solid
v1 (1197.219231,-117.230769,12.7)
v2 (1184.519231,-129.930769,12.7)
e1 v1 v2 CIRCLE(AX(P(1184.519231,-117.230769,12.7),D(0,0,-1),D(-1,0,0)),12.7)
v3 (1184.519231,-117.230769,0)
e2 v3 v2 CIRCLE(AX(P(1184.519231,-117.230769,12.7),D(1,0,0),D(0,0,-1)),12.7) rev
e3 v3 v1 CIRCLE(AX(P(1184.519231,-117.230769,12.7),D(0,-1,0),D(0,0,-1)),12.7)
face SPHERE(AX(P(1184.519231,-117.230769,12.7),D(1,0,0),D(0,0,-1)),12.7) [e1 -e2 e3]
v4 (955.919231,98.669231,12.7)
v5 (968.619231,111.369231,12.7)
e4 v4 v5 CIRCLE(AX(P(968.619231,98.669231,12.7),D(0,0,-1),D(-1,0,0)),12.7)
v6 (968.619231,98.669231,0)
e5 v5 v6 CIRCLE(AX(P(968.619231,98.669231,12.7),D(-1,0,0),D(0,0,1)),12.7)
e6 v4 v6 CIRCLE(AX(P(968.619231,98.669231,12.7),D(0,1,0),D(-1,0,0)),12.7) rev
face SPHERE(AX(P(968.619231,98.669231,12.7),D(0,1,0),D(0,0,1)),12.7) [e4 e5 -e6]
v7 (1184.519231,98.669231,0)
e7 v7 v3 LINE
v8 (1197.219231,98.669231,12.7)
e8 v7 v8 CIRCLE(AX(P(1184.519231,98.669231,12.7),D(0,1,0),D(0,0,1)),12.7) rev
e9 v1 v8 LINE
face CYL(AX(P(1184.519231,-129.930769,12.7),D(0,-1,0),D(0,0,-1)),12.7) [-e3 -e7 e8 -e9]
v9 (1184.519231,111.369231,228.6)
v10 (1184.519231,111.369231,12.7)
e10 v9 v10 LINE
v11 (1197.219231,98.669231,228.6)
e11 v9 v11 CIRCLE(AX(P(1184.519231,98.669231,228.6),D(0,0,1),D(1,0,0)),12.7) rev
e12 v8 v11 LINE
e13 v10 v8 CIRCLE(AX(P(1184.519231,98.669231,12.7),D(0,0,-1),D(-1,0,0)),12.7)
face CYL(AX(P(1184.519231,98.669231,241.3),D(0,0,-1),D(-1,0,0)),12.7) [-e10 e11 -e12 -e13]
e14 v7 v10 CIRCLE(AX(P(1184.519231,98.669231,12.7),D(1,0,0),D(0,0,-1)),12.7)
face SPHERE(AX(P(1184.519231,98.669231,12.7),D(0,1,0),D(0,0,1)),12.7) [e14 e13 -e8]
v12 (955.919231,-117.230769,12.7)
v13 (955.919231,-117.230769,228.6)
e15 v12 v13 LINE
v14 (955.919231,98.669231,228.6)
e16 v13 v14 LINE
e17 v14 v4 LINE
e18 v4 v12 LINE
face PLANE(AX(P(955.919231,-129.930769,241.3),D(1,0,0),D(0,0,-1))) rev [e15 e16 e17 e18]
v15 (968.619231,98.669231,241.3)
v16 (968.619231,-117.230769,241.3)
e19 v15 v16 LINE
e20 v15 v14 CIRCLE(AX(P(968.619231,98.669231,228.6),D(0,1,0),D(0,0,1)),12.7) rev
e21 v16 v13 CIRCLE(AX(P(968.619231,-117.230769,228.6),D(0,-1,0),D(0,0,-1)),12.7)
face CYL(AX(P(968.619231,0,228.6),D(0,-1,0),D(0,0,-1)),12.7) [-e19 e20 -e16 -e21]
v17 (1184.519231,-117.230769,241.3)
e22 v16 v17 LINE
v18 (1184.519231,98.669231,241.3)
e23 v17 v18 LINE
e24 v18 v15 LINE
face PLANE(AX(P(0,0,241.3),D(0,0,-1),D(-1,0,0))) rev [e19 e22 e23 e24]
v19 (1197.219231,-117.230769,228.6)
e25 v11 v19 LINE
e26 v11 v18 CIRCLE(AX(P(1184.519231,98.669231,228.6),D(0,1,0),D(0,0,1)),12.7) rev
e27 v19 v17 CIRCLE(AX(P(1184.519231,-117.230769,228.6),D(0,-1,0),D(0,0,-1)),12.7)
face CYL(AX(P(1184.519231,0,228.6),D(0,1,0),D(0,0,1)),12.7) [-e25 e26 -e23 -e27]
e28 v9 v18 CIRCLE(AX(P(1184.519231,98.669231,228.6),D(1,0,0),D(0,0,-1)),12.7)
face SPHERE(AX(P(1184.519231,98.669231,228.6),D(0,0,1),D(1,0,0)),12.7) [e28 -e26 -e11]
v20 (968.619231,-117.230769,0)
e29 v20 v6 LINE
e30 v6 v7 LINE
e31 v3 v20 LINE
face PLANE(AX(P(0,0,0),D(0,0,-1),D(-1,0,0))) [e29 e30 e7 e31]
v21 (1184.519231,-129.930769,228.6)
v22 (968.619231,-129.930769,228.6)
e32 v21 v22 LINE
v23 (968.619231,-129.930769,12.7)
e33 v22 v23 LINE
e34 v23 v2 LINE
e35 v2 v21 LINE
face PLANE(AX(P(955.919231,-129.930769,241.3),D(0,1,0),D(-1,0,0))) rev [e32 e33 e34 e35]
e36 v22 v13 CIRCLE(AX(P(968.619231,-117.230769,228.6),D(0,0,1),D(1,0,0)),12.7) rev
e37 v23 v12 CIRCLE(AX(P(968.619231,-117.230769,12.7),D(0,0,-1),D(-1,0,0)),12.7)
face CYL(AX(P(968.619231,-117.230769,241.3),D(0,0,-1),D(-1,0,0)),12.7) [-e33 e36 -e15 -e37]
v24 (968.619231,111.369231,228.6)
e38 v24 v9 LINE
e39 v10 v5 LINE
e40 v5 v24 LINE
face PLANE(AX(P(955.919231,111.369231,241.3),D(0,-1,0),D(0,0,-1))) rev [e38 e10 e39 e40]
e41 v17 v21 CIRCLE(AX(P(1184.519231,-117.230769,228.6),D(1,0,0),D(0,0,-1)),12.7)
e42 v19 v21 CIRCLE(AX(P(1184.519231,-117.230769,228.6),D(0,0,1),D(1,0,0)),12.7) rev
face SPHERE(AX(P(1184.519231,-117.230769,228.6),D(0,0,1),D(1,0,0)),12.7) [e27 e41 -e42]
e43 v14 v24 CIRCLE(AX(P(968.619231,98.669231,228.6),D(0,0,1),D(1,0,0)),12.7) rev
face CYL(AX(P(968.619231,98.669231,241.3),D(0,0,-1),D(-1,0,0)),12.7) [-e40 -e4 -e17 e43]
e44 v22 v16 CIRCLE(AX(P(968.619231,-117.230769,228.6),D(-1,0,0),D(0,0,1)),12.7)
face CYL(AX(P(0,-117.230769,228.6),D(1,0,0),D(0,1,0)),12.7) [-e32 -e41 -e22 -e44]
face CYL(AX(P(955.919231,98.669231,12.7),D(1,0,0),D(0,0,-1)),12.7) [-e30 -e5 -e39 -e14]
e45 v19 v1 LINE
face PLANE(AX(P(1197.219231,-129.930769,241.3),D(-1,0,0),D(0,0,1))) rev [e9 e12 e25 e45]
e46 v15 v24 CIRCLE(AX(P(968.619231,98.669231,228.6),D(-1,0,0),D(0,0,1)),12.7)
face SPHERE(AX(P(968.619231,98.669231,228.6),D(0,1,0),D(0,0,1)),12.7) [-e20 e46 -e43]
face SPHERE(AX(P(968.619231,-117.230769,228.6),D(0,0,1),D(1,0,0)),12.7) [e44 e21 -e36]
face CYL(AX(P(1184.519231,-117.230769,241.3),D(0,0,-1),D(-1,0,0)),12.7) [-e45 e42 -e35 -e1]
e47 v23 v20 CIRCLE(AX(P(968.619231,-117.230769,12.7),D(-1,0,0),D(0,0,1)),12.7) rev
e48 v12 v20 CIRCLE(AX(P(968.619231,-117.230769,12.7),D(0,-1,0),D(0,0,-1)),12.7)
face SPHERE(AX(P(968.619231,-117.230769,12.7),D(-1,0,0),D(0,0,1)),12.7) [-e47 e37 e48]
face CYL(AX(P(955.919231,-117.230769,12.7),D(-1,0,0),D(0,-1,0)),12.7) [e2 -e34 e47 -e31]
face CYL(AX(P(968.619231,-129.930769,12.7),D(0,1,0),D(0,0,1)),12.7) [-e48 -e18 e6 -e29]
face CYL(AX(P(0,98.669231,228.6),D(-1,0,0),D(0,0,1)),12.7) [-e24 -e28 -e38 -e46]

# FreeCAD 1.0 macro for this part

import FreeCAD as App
import Part
import Sketcher
from FreeCAD import Vector
Q = App.Units.Quantity


def add_polygon(sketch, points):
    """Adds a closed chain of lines whose ends are joined by coincident constraints."""
    first, n = sketch.GeometryCount, len(points)
    for a, b in zip(points, points[1:] + points[:1]):
        sketch.addGeometry(Part.LineSegment(App.Vector(*a, 0), App.Vector(*b, 0)), False)
    for i in range(n):
        sketch.addConstraint(Sketcher.Constraint("Coincident", first + i, 2, first + (i + 1) % n, 1))

doc = App.newDocument("Part")
body = doc.addObject("PartDesign::Body", "Body")

# Sketch on XY plane
sketch1 = doc.addObject("Sketcher::SketchObject", "Sketch")
body.addObject(sketch1)
sketch1.AttachmentSupport = (doc.XY_Plane, [""])
sketch1.MapMode = "FlatFace"
add_polygon(sketch1, [(956, 111), (956, -130), (1197, -130), (1197, 111)])  # lines 0-3
sketch1.addConstraint([
    Sketcher.Constraint("Vertical", 0),
    Sketcher.Constraint("Horizontal", 1),
    Sketcher.Constraint("Vertical", 2),
    Sketcher.Constraint("Horizontal", 3),
    Sketcher.Constraint("Equal", 3, 0),
    Sketcher.Constraint("DistanceX", 1, 1, 1, 2, Q("9.5 in")),
    Sketcher.Constraint("DistanceX", -1, 1, 0, 2, Q("955.919231 mm")),
    Sketcher.Constraint("DistanceY", 0, 2, -1, 1, Q("129.930769 mm")),
])
pad1 = doc.addObject("PartDesign::Pad", "Pad")
body.addObject(pad1)
pad1.Profile = sketch1
pad1.Length = Q("9.5 in")
doc.recompute()

fillet = doc.addObject("PartDesign::Fillet", "Fillet")
body.addObject(fillet)
fillet.Base = (pad1, ["Edge1"])
fillet.UseAllEdges = True
fillet.Radius = Q("0.5 in")

doc.recompute()
